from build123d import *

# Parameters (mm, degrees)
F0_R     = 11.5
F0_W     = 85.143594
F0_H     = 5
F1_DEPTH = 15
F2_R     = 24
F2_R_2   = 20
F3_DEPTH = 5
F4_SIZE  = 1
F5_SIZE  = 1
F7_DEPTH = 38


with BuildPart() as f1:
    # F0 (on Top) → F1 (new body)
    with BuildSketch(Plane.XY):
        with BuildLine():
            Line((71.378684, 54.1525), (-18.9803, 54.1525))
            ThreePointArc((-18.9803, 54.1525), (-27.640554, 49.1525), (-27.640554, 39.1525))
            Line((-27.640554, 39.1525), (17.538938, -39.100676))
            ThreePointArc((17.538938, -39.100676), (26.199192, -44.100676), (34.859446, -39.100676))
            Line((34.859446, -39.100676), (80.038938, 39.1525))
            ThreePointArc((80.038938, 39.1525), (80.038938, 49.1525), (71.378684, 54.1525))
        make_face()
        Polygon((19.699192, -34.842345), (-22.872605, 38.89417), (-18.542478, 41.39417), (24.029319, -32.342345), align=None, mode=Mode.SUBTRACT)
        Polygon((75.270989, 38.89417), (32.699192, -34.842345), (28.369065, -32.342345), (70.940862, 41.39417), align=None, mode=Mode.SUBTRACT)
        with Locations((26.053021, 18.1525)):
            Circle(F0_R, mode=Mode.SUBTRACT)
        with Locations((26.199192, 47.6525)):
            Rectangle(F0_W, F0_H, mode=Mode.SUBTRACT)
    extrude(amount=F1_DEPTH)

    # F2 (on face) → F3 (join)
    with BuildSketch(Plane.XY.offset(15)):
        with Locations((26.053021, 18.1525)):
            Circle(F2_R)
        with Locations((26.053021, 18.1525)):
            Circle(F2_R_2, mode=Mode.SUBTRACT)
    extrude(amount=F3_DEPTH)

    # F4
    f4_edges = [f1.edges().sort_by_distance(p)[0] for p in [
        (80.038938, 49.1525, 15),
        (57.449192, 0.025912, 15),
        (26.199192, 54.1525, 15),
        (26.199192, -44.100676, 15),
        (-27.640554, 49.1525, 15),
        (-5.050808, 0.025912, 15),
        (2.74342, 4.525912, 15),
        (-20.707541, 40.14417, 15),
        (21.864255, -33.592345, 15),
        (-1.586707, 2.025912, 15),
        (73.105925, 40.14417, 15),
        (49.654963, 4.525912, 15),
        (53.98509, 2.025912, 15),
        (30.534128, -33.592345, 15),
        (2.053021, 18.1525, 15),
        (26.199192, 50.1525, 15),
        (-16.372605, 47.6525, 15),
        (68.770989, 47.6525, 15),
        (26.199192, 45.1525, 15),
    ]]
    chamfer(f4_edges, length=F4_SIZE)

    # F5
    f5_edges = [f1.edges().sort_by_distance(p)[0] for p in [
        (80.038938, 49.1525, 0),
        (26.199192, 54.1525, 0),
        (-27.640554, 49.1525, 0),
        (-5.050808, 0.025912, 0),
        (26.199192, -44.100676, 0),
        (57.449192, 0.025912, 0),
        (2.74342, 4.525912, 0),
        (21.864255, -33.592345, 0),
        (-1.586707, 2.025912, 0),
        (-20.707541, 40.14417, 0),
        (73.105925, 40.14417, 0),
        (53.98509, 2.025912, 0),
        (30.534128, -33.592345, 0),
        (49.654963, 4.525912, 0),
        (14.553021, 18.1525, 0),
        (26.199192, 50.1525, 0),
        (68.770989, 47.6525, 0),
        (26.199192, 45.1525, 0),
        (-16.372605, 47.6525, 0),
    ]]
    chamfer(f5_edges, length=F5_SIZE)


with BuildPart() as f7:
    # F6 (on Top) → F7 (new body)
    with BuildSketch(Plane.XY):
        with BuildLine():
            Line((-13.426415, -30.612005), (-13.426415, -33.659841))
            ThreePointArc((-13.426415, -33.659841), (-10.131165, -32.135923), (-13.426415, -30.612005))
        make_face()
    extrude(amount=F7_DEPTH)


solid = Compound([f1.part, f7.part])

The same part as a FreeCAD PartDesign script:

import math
import FreeCAD as App
import Part
import Sketcher

V = App.Vector
Q = App.Units.Quantity


def edges_at(feature, points):
    """Names of the edges that pass closest to the given points."""
    edges = feature.Shape.Edges
    near = lambda p: min(range(len(edges)), key=lambda i: edges[i].distToShape(Part.Vertex(*p))[0])
    return sorted({f"Edge{near(p) + 1}" for p in points})

doc = App.newDocument("Part")
body = doc.addObject("PartDesign::Body", "Body")

# Sketch on XY plane
sketch1 = body.newObject("Sketcher::SketchObject", "Sketch")
sketch1.AttachmentSupport = (doc.getObject("XY_Plane"), [""])
sketch1.MapMode = "FlatFace"
sketch1.addGeometry([
    Part.LineSegment(V(71.378684, 54.1525, 0), V(-18.9803, 54.1525, 0)),  # 0
    Part.ArcOfCircle(Part.Circle(V(-18.9803, 44.1525, 0), V(0, 0, 1), 10), math.radians(90), math.radians(210)),  # 1
    Part.LineSegment(V(-27.640554, 39.1525, 0), V(17.538938, -39.100676, 0)),  # 2
    Part.ArcOfCircle(Part.Circle(V(26.199192, -34.100676, 0), V(0, 0, 1), 10), math.radians(-150), math.radians(-30)),  # 3
    Part.LineSegment(V(34.859446, -39.100676, 0), V(80.038938, 39.1525, 0)),  # 4
    Part.ArcOfCircle(Part.Circle(V(71.378684, 44.1525, 0), V(0, 0, 1), 10), math.radians(-30), math.radians(90)),  # 5
    Part.LineSegment(V(24.029319, -32.342345, 0), V(19.699192, -34.842345, 0)),  # 6
    Part.LineSegment(V(19.699192, -34.842345, 0), V(-22.872605, 38.89417, 0)),  # 7
    Part.LineSegment(V(-22.872605, 38.89417, 0), V(-18.542478, 41.39417, 0)),  # 8
    Part.LineSegment(V(-18.542478, 41.39417, 0), V(24.029319, -32.342345, 0)),  # 9
    Part.LineSegment(V(70.940862, 41.39417, 0), V(75.270989, 38.89417, 0)),  # 10
    Part.LineSegment(V(75.270989, 38.89417, 0), V(32.699192, -34.842345, 0)),  # 11
    Part.LineSegment(V(32.699192, -34.842345, 0), V(28.369065, -32.342345, 0)),  # 12
    Part.LineSegment(V(28.369065, -32.342345, 0), V(70.940862, 41.39417, 0)),  # 13
    Part.Circle(V(26.053021, 18.1525, 0), V(0, 0, 1), 11.5),  # 14
    Part.LineSegment(V(68.770989, 45.1525, 0), V(-16.372605, 45.1525, 0)),  # 15
    Part.LineSegment(V(-16.372605, 45.1525, 0), V(-16.372605, 50.1525, 0)),  # 16
    Part.LineSegment(V(-16.372605, 50.1525, 0), V(68.770989, 50.1525, 0)),  # 17
    Part.LineSegment(V(68.770989, 50.1525, 0), V(68.770989, 45.1525, 0)),  # 18
], False)
sketch1.addConstraint([
    Sketcher.Constraint("Tangent", 0, 2, 1, 1),
    Sketcher.Constraint("Tangent", 1, 2, 2, 1),
    Sketcher.Constraint("Tangent", 2, 2, 3, 1),
    Sketcher.Constraint("Tangent", 3, 2, 4, 1),
    Sketcher.Constraint("Tangent", 4, 2, 5, 1),
    Sketcher.Constraint("Tangent", 5, 2, 0, 1),
    Sketcher.Constraint("Coincident", 6, 2, 7, 1),
    Sketcher.Constraint("Coincident", 7, 2, 8, 1),
    Sketcher.Constraint("Coincident", 8, 2, 9, 1),
    Sketcher.Constraint("Coincident", 9, 2, 6, 1),
    Sketcher.Constraint("Coincident", 10, 2, 11, 1),
    Sketcher.Constraint("Coincident", 11, 2, 12, 1),
    Sketcher.Constraint("Coincident", 12, 2, 13, 1),
    Sketcher.Constraint("Coincident", 13, 2, 10, 1),
    Sketcher.Constraint("Coincident", 15, 2, 16, 1),
    Sketcher.Constraint("Coincident", 16, 2, 17, 1),
    Sketcher.Constraint("Coincident", 17, 2, 18, 1),
    Sketcher.Constraint("Coincident", 18, 2, 15, 1),
    Sketcher.Constraint("Horizontal", 0),
    Sketcher.Constraint("Horizontal", 15),
    Sketcher.Constraint("Vertical", 16),
    Sketcher.Constraint("Horizontal", 17),
    Sketcher.Constraint("Vertical", 18),
    Sketcher.Constraint("Equal", 1, 3),
    Sketcher.Constraint("Equal", 3, 5),
    Sketcher.Constraint("Perpendicular", 2, 6),
    Sketcher.Constraint("Perpendicular", 6, 7),
    Sketcher.Constraint("Perpendicular", 7, 8),
    Sketcher.Constraint("Perpendicular", 8, 9),
    Sketcher.Constraint("Perpendicular", 4, 10),
    Sketcher.Constraint("Perpendicular", 10, 11),
    Sketcher.Constraint("Perpendicular", 11, 12),
    Sketcher.Constraint("Perpendicular", 12, 13),
    Sketcher.Constraint("Horizontal", 2, 2, 3, 2),
    Sketcher.Constraint("Horizontal", 7, 2, 10, 2),
    Sketcher.Constraint("Horizontal", 6, 2, 11, 2),
    Sketcher.Constraint("Horizontal", 9, 2, 12, 2),
    Sketcher.Constraint("Diameter", 14, Q("23 mm")),
    Sketcher.Constraint("Radius", 1, Q("10 mm")),
    Sketcher.Constraint("DistanceY", 16, 1, 16, 2, Q("5 mm")),
    Sketcher.Constraint("Angle", 2, Q("-60 deg")),
    Sketcher.Constraint("Distance", 6, Q("5 mm")),
    Sketcher.Constraint("DistanceY", 14, 3, 1, 3, Q("26 mm")),
    Sketcher.Constraint("DistanceX", 6, 2, 11, 2, Q("13 mm")),
    Sketcher.Constraint("DistanceY", 1, 3, 15, 2, Q("1 mm")),
    Sketcher.Constraint("DistanceX", 6, 2, 3, 3, Q("6.5 mm")),
    Sketcher.Constraint("DistanceX", 7, 2, 15, 2, Q("6.5 mm")),
    Sketcher.Constraint("DistanceX", 17, 2, 10, 2, Q("6.5 mm")),
    Sketcher.Constraint("DistanceX", 1, 3, -1, 1, Q("18.9803 mm")),
    Sketcher.Constraint("DistanceY", -1, 1, 1, 3, Q("44.1525 mm")),
    Sketcher.Constraint("DistanceX", 8, 2, 14, 3, Q("44.595499 mm")),
    Sketcher.Constraint("DistanceX", 0, 2, 0, 1, Q("90.358984 mm")),
    Sketcher.Constraint("DistanceX", 15, 2, 15, 1, Q("85.143594 mm")),
    Sketcher.Constraint("DistanceY", -1, 1, 7, 2, Q("38.89417 mm")),
])
pad1 = body.newObject("PartDesign::Pad", "Pad")
pad1.Profile = sketch1
pad1.Length = 15

# Sketch on XY plane
sketch2 = body.newObject("Sketcher::SketchObject", "Sketch001")
sketch2.AttachmentSupport = (doc.getObject("XY_Plane"), [""])
sketch2.MapMode = "FlatFace"
sketch2.AttachmentOffset = App.Placement(V(0, 0, 15), App.Rotation())
sketch2.addGeometry([
    Part.Circle(V(26.053021, 18.1525, 0), V(0, 0, 1), 24),
    Part.Circle(V(26.053021, 18.1525, 0), V(0, 0, 1), 20),
], False)
sketch2.addConstraint([
    Sketcher.Constraint("Coincident", 1, 3, 0, 3),
    Sketcher.Constraint("Diameter", 0, Q("48 mm")),
    Sketcher.Constraint("Diameter", 1, Q("40 mm")),
    Sketcher.Constraint("DistanceY", -1, 1, 0, 3, Q("18.1525 mm")),
    Sketcher.Constraint("DistanceX", -1, 1, 0, 3, Q("26.053021 mm")),
])
pad2 = body.newObject("PartDesign::Pad", "Pad001")
pad2.Profile = sketch2
pad2.Length = 5
doc.recompute()

chamfer = body.newObject("PartDesign::Chamfer", "Chamfer")
chamfer.Base = (pad2, edges_at(pad2, [
    (80.039, 49.152, 15),
    (57.449, 0.026, 15),
    (26.199, 54.153, 15),
    (26.199, -44.101, 15),
    (-27.641, 49.152, 15),
    (-5.051, 0.026, 15),
    (2.743, 4.526, 15),
    (-20.708, 40.144, 15),
    (21.864, -33.592, 15),
    (-1.587, 2.026, 15),
    (73.106, 40.144, 15),
    (49.655, 4.526, 15),
    (53.985, 2.026, 15),
    (30.534, -33.592, 15),
    (2.053, 18.152, 15),
    (26.199, 50.153, 15),
    (-16.373, 47.653, 15),
    (68.771, 47.653, 15),
    (26.199, 45.153, 15),
]))
chamfer.Size = 1
doc.recompute()

chamfer2 = body.newObject("PartDesign::Chamfer", "Chamfer001")
chamfer2.Base = (chamfer, edges_at(chamfer, [
    (80.039, 49.152, 0),
    (26.199, 54.153, 0),
    (-27.641, 49.152, 0),
    (-5.051, 0.026, 0),
    (26.199, -44.101, 0),
    (57.449, 0.026, 0),
    (2.743, 4.526, 0),
    (21.864, -33.592, 0),
    (-1.587, 2.026, 0),
    (-20.708, 40.144, 0),
    (73.106, 40.144, 0),
    (53.985, 2.026, 0),
    (30.534, -33.592, 0),
    (49.655, 4.526, 0),
    (14.553, 18.152, 0),
    (26.199, 50.153, 0),
    (68.771, 47.653, 0),
    (26.199, 45.153, 0),
    (-16.373, 47.653, 0),
]))
chamfer2.Size = 1
body2 = doc.addObject("PartDesign::Body", "Body001")

# Sketch on XY plane
sketch3 = body2.newObject("Sketcher::SketchObject", "Sketch002")
sketch3.AttachmentSupport = (doc.getObject("XY_Plane001"), [""])
sketch3.MapMode = "FlatFace"
sketch3.addGeometry([
    Part.LineSegment(V(-13.426415, -30.612005, 0), V(-13.426415, -33.659841, 0)),
    Part.ArcOfCircle(Part.Circle(V(-12.131165, -32.135923, 0), V(0, 0, 1), 2), math.radians(-130.362788), math.radians(130.362788)),
], False)
sketch3.addConstraint([
    Sketcher.Constraint("Coincident", 0, 1, 1, 2),
    Sketcher.Constraint("Coincident", 1, 1, 0, 2),
    Sketcher.Constraint("Vertical", 0),
    Sketcher.Constraint("Radius", 1, Q("2 mm")),
    Sketcher.Constraint("DistanceY", 0, 2, 0, 1, Q("3.047836 mm")),
    Sketcher.Constraint("DistanceY", 1, 1, -1, 1, Q("33.659841 mm")),
    Sketcher.Constraint("DistanceX", 1, 3, -1, 1, Q("12.131165 mm")),
])
pad3 = body2.newObject("PartDesign::Pad", "Pad002")
pad3.Profile = sketch3
pad3.Length = 38

doc.recompute()
